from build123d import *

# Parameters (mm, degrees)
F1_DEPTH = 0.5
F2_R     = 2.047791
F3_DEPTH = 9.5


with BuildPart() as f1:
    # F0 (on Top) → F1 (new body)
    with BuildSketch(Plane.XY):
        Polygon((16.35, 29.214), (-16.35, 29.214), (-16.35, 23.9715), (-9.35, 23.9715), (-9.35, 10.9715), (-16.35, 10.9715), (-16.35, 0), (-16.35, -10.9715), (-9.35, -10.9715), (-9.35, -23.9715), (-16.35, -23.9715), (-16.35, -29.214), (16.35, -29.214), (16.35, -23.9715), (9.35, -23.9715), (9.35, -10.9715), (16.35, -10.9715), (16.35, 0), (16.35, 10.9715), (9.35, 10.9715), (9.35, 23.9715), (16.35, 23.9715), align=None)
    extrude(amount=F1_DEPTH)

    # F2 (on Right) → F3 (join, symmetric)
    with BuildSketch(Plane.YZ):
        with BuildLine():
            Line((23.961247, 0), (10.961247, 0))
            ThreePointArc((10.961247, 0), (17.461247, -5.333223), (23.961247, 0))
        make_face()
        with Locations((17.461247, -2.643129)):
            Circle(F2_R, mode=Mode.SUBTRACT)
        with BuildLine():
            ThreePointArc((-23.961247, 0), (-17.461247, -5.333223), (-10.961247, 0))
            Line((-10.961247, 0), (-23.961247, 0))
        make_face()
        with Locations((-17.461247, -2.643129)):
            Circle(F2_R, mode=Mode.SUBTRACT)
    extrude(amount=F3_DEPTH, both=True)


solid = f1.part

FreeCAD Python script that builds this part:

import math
import FreeCAD as App
import Part
import Sketcher
from FreeCAD import Vector


def add_polygon(sketch, points):
    """Adds a closed chain of lines whose ends are joined by coincident constraints."""
    first, n = sketch.GeometryCount, len(points)
    for a, b in zip(points, points[1:] + points[:1]):
        sketch.addGeometry(Part.LineSegment(App.Vector(*a, 0), App.Vector(*b, 0)), False)
    for i in range(n):
        sketch.addConstraint(Sketcher.Constraint("Coincident", first + i, 2, first + (i + 1) % n, 1))

doc = App.newDocument("Part")
body = doc.addObject("PartDesign::Body", "Body")

sketch1 = doc.addObject("Sketcher::SketchObject", "Sketch")
body.addObject(sketch1)
sketch1.AttachmentSupport = (doc.XY_Plane, [""])
sketch1.MapMode = "FlatFace"
add_polygon(sketch1, [(16, 29), (-16, 29), (-16, 24), (-9, 24), (-9, 11), (-16, 11), (-16, -11), (-9, -11), (-9, -24), (-16, -24), (-16, -29), (16, -29), (16, -24), (9, -24), (9, -11), (16, -11), (16, 11), (9, 11), (9, 24), (16, 24)])
sketch1.addConstraint([
    Sketcher.Constraint("Horizontal", 0),
    Sketcher.Constraint("Vertical", 1),
    Sketcher.Constraint("Horizontal", 2),
    Sketcher.Constraint("Vertical", 3),
    Sketcher.Constraint("Horizontal", 4),
    Sketcher.Constraint("Vertical", 5),
    Sketcher.Constraint("Horizontal", 6),
    Sketcher.Constraint("Vertical", 7),
    Sketcher.Constraint("Horizontal", 8),
    Sketcher.Constraint("Vertical", 9),
    Sketcher.Constraint("Horizontal", 10),
    Sketcher.Constraint("Vertical", 11),
    Sketcher.Constraint("Horizontal", 12),
    Sketcher.Constraint("Vertical", 13),
    Sketcher.Constraint("Horizontal", 14),
    Sketcher.Constraint("Vertical", 15),
    Sketcher.Constraint("Horizontal", 16),
    Sketcher.Constraint("Vertical", 17),
    Sketcher.Constraint("Horizontal", 18),
    Sketcher.Constraint("Vertical", 19),
    Sketcher.Constraint("Symmetric", 0, 2, 10, 2, -1, 1),
    Sketcher.Constraint("Symmetric", 2, 2, 12, 2, -1, 1),
    Sketcher.Constraint("Symmetric", 4, 2, 14, 2, -1, 1),
    Sketcher.Constraint("Symmetric", 6, 2, 16, 2, -1, 1),
    Sketcher.Constraint("Symmetric", 8, 2, 18, 2, -1, 1),
    Sketcher.Constraint("Symmetric", 8, 2, 11, 2, -2),
    Sketcher.Constraint("Symmetric", 6, 2, 13, 2, -2),
    Sketcher.Constraint("Vertical", 1, 2, 4, 2),
    Sketcher.Constraint("DistanceX", 2, 1, 2, 2, 7.0),
    Sketcher.Constraint("DistanceY", 3, 2, 3, 1, 13.0),
    Sketcher.Constraint("DistanceX", 0, 2, 0, 1, 32.7),
    Sketcher.Constraint("DistanceY", 5, 2, 5, 1, 21.943),
    Sketcher.Constraint("DistanceY", 1, 2, 1, 1, 5.2425),
])
pad1 = doc.addObject("PartDesign::Pad", "Pad")
body.addObject(pad1)
pad1.Profile = sketch1
pad1.Length = 0.5

sketch2 = doc.addObject("Sketcher::SketchObject", "Sketch001")
body.addObject(sketch2)
sketch2.AttachmentSupport = (doc.YZ_Plane, [""])
sketch2.MapMode = "FlatFace"
sketch2.addGeometry([
    Part.LineSegment(Vector(24, 0, 0), Vector(11, 0, 0)),
    Part.ArcOfCircle(Part.Circle(Vector(17.5, 1.3, 0), Vector(0, 0, 1), 6.6), math.radians(-169), math.radians(-11)),
    Part.Circle(Vector(17.5, -2.6, 0), Vector(0, 0, 1), 2),
    Part.ArcOfCircle(Part.Circle(Vector(-17.5, 1.3, 0), Vector(0, 0, 1), 6.6), math.radians(-169), math.radians(-11)),
    Part.LineSegment(Vector(-11, 0, 0), Vector(-24, 0, 0)),
    Part.Circle(Vector(-17.5, -2.6, 0), Vector(0, 0, 1), 2),
], False)
sketch2.addConstraint([
    Sketcher.Constraint("Coincident", 0, 1, 1, 2),
    Sketcher.Constraint("Coincident", 1, 1, 0, 2),
    Sketcher.Constraint("Coincident", 3, 1, 4, 2),
    Sketcher.Constraint("Coincident", 4, 1, 3, 2),
    Sketcher.Constraint("Horizontal", 0),
    Sketcher.Constraint("Horizontal", 4),
    Sketcher.Constraint("Equal", 1, 3),
    Sketcher.Constraint("Equal", 2, 5),
    Sketcher.Constraint("Symmetric", 0, 1, 3, 1, -1, 1),
    Sketcher.Constraint("Symmetric", 1, 3, 3, 3, -2),
    Sketcher.Constraint("Symmetric", 2, 3, 5, 3, -2),
    Sketcher.Constraint("Vertical", 1, 3, 2, 3),
    Sketcher.Constraint("DistanceX", 0, 2, 0, 1, 13.0),
    Sketcher.Constraint("Radius", 1, 6.627631),
    Sketcher.Constraint("Diameter", 2, 4.095582),
    Sketcher.Constraint("DistanceY", 2, 3, -1, 1, 2.643129),
    Sketcher.Constraint("DistanceX", -1, 1, 1, 3, 17.461247),
])
pad2 = doc.addObject("PartDesign::Pad", "Pad001")
body.addObject(pad2)
pad2.Profile = sketch2
pad2.Length = 19
pad2.Midplane = True

doc.recompute()
